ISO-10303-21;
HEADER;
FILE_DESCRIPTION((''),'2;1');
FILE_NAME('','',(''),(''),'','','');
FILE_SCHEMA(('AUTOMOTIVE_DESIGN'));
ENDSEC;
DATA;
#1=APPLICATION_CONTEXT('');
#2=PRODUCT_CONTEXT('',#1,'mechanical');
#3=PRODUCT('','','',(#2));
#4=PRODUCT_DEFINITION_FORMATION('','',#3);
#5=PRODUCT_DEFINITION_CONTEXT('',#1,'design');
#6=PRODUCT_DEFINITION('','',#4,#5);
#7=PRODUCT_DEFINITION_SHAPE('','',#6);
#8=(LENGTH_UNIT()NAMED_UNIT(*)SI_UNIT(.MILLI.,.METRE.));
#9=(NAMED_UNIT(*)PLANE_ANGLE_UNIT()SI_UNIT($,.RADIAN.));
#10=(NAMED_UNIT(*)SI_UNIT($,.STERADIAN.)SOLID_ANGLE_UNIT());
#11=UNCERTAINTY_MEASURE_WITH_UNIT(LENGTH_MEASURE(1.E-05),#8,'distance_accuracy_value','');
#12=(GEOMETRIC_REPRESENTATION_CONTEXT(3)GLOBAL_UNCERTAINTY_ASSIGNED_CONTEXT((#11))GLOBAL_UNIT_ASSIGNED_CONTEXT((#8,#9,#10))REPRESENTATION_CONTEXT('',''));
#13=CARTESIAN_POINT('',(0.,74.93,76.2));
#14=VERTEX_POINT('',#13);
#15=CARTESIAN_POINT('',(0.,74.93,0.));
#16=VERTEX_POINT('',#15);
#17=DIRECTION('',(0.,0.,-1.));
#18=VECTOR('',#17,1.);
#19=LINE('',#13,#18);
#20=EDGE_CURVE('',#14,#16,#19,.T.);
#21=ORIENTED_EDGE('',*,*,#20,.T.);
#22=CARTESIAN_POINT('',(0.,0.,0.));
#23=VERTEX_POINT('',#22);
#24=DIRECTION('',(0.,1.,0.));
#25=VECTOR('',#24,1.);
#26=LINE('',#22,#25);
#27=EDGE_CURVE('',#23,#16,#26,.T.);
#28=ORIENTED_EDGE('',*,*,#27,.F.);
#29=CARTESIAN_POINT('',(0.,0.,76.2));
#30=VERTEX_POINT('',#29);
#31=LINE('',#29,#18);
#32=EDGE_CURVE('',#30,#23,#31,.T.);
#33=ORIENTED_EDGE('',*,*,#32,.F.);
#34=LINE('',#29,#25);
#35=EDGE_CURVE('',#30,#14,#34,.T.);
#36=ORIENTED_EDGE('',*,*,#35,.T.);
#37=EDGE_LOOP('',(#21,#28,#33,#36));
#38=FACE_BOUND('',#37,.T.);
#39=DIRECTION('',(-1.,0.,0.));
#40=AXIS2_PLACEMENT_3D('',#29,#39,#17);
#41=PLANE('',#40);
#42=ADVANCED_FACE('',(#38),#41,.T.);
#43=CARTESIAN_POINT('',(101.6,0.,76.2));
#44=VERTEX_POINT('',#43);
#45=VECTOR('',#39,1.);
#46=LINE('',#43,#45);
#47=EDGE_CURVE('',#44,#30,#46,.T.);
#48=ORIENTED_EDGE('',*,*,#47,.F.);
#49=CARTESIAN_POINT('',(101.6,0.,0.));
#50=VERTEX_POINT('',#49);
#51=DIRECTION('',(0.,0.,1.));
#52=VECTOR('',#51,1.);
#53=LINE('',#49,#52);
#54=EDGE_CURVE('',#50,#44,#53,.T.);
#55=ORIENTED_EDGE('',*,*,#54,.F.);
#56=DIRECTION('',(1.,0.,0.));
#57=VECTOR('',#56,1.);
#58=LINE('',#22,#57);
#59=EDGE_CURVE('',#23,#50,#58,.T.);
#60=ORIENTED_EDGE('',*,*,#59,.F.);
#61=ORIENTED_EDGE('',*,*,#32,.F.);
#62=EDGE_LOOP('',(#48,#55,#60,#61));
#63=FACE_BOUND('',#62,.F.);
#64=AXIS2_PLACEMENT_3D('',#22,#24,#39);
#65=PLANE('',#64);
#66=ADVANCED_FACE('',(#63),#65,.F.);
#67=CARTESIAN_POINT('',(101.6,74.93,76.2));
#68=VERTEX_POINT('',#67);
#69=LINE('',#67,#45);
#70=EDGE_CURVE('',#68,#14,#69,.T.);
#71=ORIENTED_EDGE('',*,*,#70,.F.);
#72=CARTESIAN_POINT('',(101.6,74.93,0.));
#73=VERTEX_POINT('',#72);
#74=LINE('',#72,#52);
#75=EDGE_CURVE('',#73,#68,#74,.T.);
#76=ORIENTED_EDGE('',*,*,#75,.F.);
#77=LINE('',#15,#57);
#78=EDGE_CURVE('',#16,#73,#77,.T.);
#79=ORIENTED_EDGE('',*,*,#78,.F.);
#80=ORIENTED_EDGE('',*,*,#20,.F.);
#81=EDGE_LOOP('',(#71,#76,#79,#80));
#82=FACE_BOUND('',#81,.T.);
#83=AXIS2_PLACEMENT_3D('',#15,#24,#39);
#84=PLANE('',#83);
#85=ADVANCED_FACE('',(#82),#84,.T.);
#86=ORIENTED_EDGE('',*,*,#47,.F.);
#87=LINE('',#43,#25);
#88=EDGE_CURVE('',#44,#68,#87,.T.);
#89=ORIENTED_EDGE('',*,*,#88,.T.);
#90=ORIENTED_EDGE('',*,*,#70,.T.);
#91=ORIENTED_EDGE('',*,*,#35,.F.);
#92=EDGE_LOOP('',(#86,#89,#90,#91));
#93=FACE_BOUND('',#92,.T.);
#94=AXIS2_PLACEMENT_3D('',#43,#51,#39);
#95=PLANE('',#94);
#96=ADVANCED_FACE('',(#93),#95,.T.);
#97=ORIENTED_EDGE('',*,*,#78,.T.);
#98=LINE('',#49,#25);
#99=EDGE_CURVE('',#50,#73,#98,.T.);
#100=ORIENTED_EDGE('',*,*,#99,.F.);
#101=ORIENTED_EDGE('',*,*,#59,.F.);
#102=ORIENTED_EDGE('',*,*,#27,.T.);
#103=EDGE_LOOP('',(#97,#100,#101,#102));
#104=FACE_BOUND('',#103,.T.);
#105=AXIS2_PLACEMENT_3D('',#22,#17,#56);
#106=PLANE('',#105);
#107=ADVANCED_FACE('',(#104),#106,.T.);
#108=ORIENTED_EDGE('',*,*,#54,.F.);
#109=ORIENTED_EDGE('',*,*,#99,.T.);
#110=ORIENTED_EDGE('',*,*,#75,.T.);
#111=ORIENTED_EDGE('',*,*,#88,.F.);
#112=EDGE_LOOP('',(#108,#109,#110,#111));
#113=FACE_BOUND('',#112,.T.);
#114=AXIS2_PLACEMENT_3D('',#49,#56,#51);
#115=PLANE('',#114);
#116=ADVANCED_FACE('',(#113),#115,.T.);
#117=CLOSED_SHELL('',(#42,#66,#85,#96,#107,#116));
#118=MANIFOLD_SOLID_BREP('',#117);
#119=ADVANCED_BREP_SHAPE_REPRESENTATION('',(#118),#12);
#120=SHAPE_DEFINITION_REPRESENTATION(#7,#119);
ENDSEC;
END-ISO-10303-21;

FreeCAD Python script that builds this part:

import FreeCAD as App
import Part
import Sketcher

V = App.Vector
Q = App.Units.Quantity


def add_polygon(sketch, points):
    """Adds a closed chain of lines whose ends are joined by coincident constraints."""
    first, n = sketch.GeometryCount, len(points)
    for a, b in zip(points, points[1:] + points[:1]):
        sketch.addGeometry(Part.LineSegment(App.Vector(*a, 0), App.Vector(*b, 0)), False)
    for i in range(n):
        sketch.addConstraint(Sketcher.Constraint("Coincident", first + i, 2, first + (i + 1) % n, 1))

doc = App.newDocument("Part")
body = doc.addObject("PartDesign::Body", "Body")

# Sketch on XZ plane
sketch1 = body.newObject("Sketcher::SketchObject", "Sketch")
sketch1.AttachmentSupport = (doc.getObject("XZ_Plane"), [""])
sketch1.MapMode = "FlatFace"
add_polygon(sketch1, [(102, 0), (0, 0), (0, 76), (102, 76)])  # lines 0-3
sketch1.addConstraint([
    Sketcher.Constraint("Horizontal", 0),
    Sketcher.Constraint("Vertical", 1),
    Sketcher.Constraint("Horizontal", 2),
    Sketcher.Constraint("Vertical", 3),
    Sketcher.Constraint("Coincident", 0, 2, -1, 1),
    Sketcher.Constraint("DistanceX", 0, 2, 0, 1, Q("4 in")),
    Sketcher.Constraint("DistanceY", 1, 1, 1, 2, Q("3 in")),
])
pad1 = body.newObject("PartDesign::Pad", "Pad")
pad1.Profile = sketch1
pad1.Length = Q("2.95 in")
pad1.Reversed = True

doc.recompute()
